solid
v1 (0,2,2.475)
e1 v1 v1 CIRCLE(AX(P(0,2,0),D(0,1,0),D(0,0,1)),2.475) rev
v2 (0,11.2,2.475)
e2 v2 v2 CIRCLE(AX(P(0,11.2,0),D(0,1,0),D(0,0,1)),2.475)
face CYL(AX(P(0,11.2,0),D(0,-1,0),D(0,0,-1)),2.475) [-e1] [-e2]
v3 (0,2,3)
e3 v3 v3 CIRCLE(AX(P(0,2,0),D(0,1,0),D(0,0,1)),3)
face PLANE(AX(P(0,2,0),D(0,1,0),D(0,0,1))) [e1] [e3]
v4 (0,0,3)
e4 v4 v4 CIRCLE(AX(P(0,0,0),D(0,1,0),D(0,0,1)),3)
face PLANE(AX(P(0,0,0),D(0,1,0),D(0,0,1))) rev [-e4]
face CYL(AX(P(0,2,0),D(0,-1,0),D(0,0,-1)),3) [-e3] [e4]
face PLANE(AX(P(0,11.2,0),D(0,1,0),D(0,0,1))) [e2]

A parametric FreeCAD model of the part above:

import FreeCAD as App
import Part
import Sketcher
Q = App.Units.Quantity

doc = App.newDocument("Part")
body = doc.addObject("PartDesign::Body", "Body")

sketch1 = body.newObject("Sketcher::SketchObject", "Sketch")
sketch1.AttachmentSupport = (doc.getObject("XZ_Plane"), [""])
sketch1.MapMode = "FlatFace"
sketch1.addGeometry(Part.Circle(App.Vector(0, 0, 0), App.Vector(0, 0, 1), 3), False)
sketch1.addConstraint([
    Sketcher.Constraint("Coincident", 0, 3, -1, 1),
    Sketcher.Constraint("Diameter", 0, Q("6 mm")),
])
pad1 = body.newObject("PartDesign::Pad", "Pad")
pad1.Profile = sketch1
pad1.Length = 2
pad1.Reversed = True

sketch2 = body.newObject("Sketcher::SketchObject", "Sketch001")
sketch2.AttachmentSupport = (doc.getObject("XZ_Plane"), [""])
sketch2.MapMode = "FlatFace"
sketch2.addGeometry(Part.Circle(App.Vector(0, 0, 0), App.Vector(0, 0, 1), 2.475), False)
sketch2.addConstraint([
    Sketcher.Constraint("Coincident", 0, 3, -1, 1),
    Sketcher.Constraint("Diameter", 0, Q("4.95 mm")),
])
pad2 = body.newObject("PartDesign::Pad", "Pad001")
pad2.Profile = sketch2
pad2.Length = 11.2
pad2.Reversed = True

doc.recompute()
